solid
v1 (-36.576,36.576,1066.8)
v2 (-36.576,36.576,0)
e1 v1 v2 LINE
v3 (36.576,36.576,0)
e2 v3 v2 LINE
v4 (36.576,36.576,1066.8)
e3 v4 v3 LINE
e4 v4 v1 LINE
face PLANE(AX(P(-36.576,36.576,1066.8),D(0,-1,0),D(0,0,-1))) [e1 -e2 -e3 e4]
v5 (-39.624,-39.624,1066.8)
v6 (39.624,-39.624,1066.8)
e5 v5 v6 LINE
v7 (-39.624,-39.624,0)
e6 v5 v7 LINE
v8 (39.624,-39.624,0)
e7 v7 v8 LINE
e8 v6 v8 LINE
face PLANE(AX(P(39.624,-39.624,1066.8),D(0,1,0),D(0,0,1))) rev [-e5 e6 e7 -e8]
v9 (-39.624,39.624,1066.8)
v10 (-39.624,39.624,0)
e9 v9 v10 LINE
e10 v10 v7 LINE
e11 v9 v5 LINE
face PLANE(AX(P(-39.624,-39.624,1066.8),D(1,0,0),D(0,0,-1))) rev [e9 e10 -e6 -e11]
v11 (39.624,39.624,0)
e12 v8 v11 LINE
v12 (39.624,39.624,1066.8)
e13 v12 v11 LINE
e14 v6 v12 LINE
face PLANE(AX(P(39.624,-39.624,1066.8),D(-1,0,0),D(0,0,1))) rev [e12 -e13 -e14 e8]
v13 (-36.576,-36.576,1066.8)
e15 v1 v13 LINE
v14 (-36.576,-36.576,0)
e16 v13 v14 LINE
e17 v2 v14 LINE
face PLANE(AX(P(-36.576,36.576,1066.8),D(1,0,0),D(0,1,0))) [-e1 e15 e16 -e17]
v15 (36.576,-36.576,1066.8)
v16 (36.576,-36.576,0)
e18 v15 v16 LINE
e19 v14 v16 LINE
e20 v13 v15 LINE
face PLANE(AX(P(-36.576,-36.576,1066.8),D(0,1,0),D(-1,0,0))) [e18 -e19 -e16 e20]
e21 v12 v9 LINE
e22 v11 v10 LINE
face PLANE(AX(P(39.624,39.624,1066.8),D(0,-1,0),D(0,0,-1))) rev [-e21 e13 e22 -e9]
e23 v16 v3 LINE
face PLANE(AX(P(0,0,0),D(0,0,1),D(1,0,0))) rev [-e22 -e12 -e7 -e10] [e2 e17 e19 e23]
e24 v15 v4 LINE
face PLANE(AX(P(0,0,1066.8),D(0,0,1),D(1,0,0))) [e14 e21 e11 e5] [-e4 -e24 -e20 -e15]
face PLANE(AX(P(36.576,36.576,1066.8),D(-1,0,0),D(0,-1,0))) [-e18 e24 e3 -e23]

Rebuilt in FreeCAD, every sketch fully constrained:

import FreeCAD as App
import Part
import Sketcher

V = App.Vector
Q = App.Units.Quantity

doc = App.newDocument("Part")
body = doc.addObject("PartDesign::Body", "Body")

# Sketch on XY plane
sketch1 = doc.addObject("Sketcher::SketchObject", "Sketch")
body.addObject(sketch1)
sketch1.AttachmentSupport = (doc.XY_Plane, [""])
sketch1.MapMode = "FlatFace"
sketch1.addGeometry([
    Part.LineSegment(V(-39.624, 39.624, 0), V(-39.624, -39.624, 0)),  # 0
    Part.LineSegment(V(-39.624, -39.624, 0), V(39.624, -39.624, 0)),  # 1
    Part.LineSegment(V(39.624, -39.624, 0), V(39.624, 39.624, 0)),  # 2
    Part.LineSegment(V(39.624, 39.624, 0), V(-39.624, 39.624, 0)),  # 3
    Part.LineSegment(V(36.576, -36.576, 0), V(-36.576, -36.576, 0)),  # 4
    Part.LineSegment(V(-36.576, -36.576, 0), V(-36.576, 36.576, 0)),  # 5
    Part.LineSegment(V(-36.576, 36.576, 0), V(36.576, 36.576, 0)),  # 6
    Part.LineSegment(V(36.576, 36.576, 0), V(36.576, -36.576, 0)),  # 7
], False)
sketch1.addConstraint([
    Sketcher.Constraint("Coincident", 0, 2, 1, 1),
    Sketcher.Constraint("Coincident", 1, 2, 2, 1),
    Sketcher.Constraint("Coincident", 2, 2, 3, 1),
    Sketcher.Constraint("Coincident", 3, 2, 0, 1),
    Sketcher.Constraint("Coincident", 4, 2, 5, 1),
    Sketcher.Constraint("Coincident", 5, 2, 6, 1),
    Sketcher.Constraint("Coincident", 6, 2, 7, 1),
    Sketcher.Constraint("Coincident", 7, 2, 4, 1),
    Sketcher.Constraint("Vertical", 0),
    Sketcher.Constraint("Horizontal", 1),
    Sketcher.Constraint("Vertical", 2),
    Sketcher.Constraint("Horizontal", 3),
    Sketcher.Constraint("Horizontal", 4),
    Sketcher.Constraint("Vertical", 5),
    Sketcher.Constraint("Horizontal", 6),
    Sketcher.Constraint("Vertical", 7),
    Sketcher.Constraint("Symmetric", 0, 2, 2, 2, -1, 1),
    Sketcher.Constraint("Symmetric", 4, 2, 6, 2, -1, 1),
    Sketcher.Constraint("Equal", 3, 0),
    Sketcher.Constraint("Equal", 6, 5),
    Sketcher.Constraint("DistanceX", 4, 2, 1, 2, Q("3 in")),
    Sketcher.Constraint("DistanceX", 1, 1, 1, 2, Q("3.12 in")),
])
pad1 = doc.addObject("PartDesign::Pad", "Pad")
body.addObject(pad1)
pad1.Profile = sketch1
pad1.Length = Q("42 in")

doc.recompute()
